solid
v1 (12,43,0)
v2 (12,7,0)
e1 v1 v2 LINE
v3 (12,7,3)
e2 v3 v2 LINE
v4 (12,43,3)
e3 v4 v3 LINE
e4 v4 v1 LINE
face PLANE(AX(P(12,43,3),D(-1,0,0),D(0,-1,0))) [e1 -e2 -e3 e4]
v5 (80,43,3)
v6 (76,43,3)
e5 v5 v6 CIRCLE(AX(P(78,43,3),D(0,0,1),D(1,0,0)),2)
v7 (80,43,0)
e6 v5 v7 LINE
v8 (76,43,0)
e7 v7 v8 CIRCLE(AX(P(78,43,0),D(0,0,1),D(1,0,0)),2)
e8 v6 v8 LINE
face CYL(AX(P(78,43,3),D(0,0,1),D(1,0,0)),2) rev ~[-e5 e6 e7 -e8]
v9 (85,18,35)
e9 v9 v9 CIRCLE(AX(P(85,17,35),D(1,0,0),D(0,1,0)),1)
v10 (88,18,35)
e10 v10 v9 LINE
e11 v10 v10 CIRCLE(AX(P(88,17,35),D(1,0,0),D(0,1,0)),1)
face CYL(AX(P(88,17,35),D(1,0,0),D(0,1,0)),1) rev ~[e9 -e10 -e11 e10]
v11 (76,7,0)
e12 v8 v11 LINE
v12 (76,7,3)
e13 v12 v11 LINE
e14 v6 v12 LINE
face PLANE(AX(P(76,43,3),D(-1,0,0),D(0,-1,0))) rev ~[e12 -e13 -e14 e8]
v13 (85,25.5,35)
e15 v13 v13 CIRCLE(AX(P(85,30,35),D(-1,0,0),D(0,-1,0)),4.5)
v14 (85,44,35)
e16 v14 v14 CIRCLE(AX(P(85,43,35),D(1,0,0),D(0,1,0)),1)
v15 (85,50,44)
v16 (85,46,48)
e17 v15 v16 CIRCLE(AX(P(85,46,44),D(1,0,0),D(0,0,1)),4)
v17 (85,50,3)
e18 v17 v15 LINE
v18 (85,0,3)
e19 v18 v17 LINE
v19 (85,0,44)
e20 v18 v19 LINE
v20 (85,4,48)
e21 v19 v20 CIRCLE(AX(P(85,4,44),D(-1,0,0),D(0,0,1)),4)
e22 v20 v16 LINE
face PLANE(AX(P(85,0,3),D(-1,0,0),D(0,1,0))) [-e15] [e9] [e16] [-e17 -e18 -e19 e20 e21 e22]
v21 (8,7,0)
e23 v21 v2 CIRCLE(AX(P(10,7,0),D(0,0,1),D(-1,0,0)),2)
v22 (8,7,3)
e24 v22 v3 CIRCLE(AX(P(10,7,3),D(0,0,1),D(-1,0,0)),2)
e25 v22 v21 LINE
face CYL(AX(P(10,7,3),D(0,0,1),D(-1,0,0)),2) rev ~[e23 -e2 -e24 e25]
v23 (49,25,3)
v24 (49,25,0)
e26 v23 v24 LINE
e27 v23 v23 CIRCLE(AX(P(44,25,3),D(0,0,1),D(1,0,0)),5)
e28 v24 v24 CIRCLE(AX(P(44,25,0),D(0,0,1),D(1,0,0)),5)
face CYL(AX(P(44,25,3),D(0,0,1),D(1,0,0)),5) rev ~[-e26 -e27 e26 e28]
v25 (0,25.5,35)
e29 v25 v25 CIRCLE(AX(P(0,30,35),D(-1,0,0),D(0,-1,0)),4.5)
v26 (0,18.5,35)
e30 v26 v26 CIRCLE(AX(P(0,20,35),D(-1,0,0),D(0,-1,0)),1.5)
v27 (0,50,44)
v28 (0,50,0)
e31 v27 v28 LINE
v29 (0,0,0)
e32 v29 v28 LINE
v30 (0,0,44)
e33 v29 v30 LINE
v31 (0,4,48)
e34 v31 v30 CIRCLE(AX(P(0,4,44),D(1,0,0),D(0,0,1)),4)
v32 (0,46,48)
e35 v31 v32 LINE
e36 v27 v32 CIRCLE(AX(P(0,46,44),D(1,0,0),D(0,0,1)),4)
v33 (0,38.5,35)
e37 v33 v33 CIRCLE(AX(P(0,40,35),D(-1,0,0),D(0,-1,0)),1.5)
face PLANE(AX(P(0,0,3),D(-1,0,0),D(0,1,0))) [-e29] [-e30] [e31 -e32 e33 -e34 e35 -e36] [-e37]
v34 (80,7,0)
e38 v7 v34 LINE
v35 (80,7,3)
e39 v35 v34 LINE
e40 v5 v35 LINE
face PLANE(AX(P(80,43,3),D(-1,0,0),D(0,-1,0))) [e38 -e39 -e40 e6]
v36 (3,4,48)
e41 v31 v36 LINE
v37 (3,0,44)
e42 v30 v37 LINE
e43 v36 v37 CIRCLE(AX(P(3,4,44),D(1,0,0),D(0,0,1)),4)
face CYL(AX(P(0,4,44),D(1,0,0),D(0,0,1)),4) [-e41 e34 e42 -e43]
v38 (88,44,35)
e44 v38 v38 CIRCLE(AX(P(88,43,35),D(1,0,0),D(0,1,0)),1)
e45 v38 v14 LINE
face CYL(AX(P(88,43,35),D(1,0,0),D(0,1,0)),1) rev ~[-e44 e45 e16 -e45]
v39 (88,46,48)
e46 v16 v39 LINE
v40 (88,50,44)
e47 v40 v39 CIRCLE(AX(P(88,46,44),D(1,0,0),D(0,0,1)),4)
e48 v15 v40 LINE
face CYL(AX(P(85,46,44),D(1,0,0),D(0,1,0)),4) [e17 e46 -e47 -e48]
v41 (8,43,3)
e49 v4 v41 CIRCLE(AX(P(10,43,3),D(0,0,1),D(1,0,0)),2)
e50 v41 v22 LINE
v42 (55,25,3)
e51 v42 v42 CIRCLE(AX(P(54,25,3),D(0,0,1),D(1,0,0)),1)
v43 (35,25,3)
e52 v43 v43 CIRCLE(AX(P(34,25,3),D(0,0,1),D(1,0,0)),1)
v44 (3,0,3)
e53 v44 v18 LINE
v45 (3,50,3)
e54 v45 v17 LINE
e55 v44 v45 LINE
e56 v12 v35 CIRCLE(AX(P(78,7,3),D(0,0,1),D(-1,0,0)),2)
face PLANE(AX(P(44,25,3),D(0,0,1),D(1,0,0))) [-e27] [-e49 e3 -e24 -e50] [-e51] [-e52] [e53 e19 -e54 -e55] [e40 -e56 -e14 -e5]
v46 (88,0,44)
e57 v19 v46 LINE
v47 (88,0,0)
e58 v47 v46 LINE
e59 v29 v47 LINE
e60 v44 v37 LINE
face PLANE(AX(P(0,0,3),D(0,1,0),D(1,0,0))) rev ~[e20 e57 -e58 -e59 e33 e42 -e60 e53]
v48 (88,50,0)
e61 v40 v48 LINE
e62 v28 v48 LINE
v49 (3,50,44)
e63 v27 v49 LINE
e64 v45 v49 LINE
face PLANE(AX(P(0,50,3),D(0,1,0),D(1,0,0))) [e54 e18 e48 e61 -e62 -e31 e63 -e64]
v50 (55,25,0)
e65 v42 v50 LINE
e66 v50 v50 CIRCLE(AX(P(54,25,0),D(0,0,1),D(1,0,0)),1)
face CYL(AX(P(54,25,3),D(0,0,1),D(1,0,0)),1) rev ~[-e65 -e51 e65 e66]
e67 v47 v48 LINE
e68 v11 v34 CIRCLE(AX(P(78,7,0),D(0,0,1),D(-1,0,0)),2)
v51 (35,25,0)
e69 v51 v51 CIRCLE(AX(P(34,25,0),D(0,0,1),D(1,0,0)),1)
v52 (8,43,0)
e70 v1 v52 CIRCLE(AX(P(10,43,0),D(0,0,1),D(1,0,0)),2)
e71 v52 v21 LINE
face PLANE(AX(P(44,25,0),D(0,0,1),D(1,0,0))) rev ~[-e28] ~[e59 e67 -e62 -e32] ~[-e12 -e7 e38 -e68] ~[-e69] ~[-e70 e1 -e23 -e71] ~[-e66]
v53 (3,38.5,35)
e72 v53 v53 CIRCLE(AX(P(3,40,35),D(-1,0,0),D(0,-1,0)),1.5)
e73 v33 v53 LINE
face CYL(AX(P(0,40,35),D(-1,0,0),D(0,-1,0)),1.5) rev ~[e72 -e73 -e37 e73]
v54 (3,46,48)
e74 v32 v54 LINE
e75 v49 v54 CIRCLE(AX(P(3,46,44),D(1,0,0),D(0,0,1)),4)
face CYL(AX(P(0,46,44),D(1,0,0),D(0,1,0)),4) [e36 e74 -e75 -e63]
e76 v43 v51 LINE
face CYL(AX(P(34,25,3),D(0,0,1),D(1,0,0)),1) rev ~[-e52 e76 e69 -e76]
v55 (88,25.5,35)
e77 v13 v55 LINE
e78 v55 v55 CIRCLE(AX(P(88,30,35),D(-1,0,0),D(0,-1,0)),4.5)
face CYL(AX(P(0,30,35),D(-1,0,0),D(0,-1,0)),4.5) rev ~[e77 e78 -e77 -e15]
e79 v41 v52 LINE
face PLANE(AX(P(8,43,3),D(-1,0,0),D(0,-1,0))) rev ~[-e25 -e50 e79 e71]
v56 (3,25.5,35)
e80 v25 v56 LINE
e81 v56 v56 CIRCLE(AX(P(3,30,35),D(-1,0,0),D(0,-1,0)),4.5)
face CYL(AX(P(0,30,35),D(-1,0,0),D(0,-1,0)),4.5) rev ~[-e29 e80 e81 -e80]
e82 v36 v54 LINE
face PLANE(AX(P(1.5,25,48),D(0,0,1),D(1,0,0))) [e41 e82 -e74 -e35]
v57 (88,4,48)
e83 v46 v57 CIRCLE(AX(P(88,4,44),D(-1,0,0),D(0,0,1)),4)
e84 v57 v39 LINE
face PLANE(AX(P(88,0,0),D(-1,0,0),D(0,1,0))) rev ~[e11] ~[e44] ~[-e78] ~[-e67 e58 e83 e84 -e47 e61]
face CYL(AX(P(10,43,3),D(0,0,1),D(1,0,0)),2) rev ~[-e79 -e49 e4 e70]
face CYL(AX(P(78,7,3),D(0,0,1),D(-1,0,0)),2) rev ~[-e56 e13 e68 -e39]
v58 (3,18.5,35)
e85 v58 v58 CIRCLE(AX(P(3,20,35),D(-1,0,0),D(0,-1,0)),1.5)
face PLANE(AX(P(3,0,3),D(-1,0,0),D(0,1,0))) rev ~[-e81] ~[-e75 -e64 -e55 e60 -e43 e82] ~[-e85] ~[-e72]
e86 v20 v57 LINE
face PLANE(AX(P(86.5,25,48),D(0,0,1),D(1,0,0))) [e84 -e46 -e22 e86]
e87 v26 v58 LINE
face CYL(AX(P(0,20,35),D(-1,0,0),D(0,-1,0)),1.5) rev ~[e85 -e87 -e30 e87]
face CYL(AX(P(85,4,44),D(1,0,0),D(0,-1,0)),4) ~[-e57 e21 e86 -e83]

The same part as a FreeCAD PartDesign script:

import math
import FreeCAD as App
import Part
import Sketcher
Q = App.Units.Quantity


def edges_at(feature, points):
    """Names of the edges that pass closest to the given points."""
    edges = feature.Shape.Edges
    near = lambda p: min(range(len(edges)), key=lambda i: edges[i].distToShape(Part.Vertex(*p))[0])
    return sorted({f"Edge{near(p) + 1}" for p in points})

doc = App.newDocument("Part")
body = doc.addObject("PartDesign::Body", "Body")

# Sketch on XY plane
sketch1 = body.newObject("Sketcher::SketchObject", "Sketch")
sketch1.AttachmentSupport = (doc.getObject("XY_Plane"), [""])
sketch1.MapMode = "FlatFace"
sketch1.addGeometry([
    Part.LineSegment(App.Vector(0, 50, 0), App.Vector(0, 0, 0)),
    Part.LineSegment(App.Vector(0, 0, 0), App.Vector(88, 0, 0)),
    Part.LineSegment(App.Vector(88, 0, 0), App.Vector(88, 50, 0)),
    Part.LineSegment(App.Vector(88, 50, 0), App.Vector(0, 50, 0)),
], False)
sketch1.addConstraint([
    Sketcher.Constraint("Coincident", 0, 2, 1, 1),
    Sketcher.Constraint("Coincident", 1, 2, 2, 1),
    Sketcher.Constraint("Coincident", 2, 2, 3, 1),
    Sketcher.Constraint("Coincident", 3, 2, 0, 1),
    Sketcher.Constraint("Vertical", 0),
    Sketcher.Constraint("Horizontal", 1),
    Sketcher.Constraint("Vertical", 2),
    Sketcher.Constraint("Horizontal", 3),
    Sketcher.Constraint("Coincident", 0, 2, -1, 1),
    Sketcher.Constraint("DistanceX", 1, 1, 1, 2, Q("88 mm")),
    Sketcher.Constraint("DistanceY", 0, 2, 0, 1, Q("50 mm")),
])
pad1 = body.newObject("PartDesign::Pad", "Pad")
pad1.Profile = sketch1
pad1.Length = 3

# Sketch on XY plane
sketch2 = body.newObject("Sketcher::SketchObject", "Sketch001")
sketch2.AttachmentSupport = (doc.getObject("XY_Plane"), [""])
sketch2.MapMode = "FlatFace"
sketch2.AttachmentOffset = App.Placement(App.Vector(0, 0, 3), App.Rotation())
sketch2.addGeometry(Part.Circle(App.Vector(44, 25, 0), App.Vector(0, 0, 1), 5), False)
sketch2.addConstraint([
    Sketcher.Constraint("Diameter", 0, Q("10 mm")),
    Sketcher.Constraint("DistanceX", -1, 1, 0, 3, Q("44 mm")),
    Sketcher.Constraint("DistanceY", -1, 1, 0, 3, Q("25 mm")),
])
pocket1 = body.newObject("PartDesign::Pocket", "Pocket")
pocket1.Profile = sketch2
pocket1.Length = 5

# Sketch on XY plane
sketch3 = body.newObject("Sketcher::SketchObject", "Sketch002")
sketch3.AttachmentSupport = (doc.getObject("XY_Plane"), [""])
sketch3.MapMode = "FlatFace"
sketch3.AttachmentOffset = App.Placement(App.Vector(0, 0, 3), App.Rotation())
sketch3.addGeometry([
    Part.LineSegment(App.Vector(0, 50, 0), App.Vector(0, 0, 0)),  # 0
    Part.LineSegment(App.Vector(0, 0, 0), App.Vector(3, 0, 0)),  # 1
    Part.LineSegment(App.Vector(3, 0, 0), App.Vector(3, 50, 0)),  # 2
    Part.LineSegment(App.Vector(3, 50, 0), App.Vector(0, 50, 0)),  # 3
    Part.LineSegment(App.Vector(85, 50, 0), App.Vector(85, 0, 0)),  # 4
    Part.LineSegment(App.Vector(85, 0, 0), App.Vector(88, 0, 0)),  # 5
    Part.LineSegment(App.Vector(88, 0, 0), App.Vector(88, 50, 0)),  # 6
    Part.LineSegment(App.Vector(88, 50, 0), App.Vector(85, 50, 0)),  # 7
], False)
sketch3.addConstraint([
    Sketcher.Constraint("Coincident", 0, 2, 1, 1),
    Sketcher.Constraint("Coincident", 1, 2, 2, 1),
    Sketcher.Constraint("Coincident", 2, 2, 3, 1),
    Sketcher.Constraint("Coincident", 3, 2, 0, 1),
    Sketcher.Constraint("Coincident", 4, 2, 5, 1),
    Sketcher.Constraint("Coincident", 5, 2, 6, 1),
    Sketcher.Constraint("Coincident", 6, 2, 7, 1),
    Sketcher.Constraint("Coincident", 7, 2, 4, 1),
    Sketcher.Constraint("Vertical", 0),
    Sketcher.Constraint("Horizontal", 1),
    Sketcher.Constraint("Vertical", 2),
    Sketcher.Constraint("Horizontal", 3),
    Sketcher.Constraint("Vertical", 4),
    Sketcher.Constraint("Horizontal", 5),
    Sketcher.Constraint("Vertical", 6),
    Sketcher.Constraint("Horizontal", 7),
    Sketcher.Constraint("Coincident", 0, 2, -1, 1),
    Sketcher.Constraint("PointOnObject", 4, 2, -1),
    Sketcher.Constraint("Horizontal", 3, 2, 6, 2),
    Sketcher.Constraint("Equal", 3, 5),
    Sketcher.Constraint("DistanceX", 1, 1, 1, 2, Q("3 mm")),
    Sketcher.Constraint("DistanceY", 0, 2, 0, 1, Q("50 mm")),
    Sketcher.Constraint("DistanceX", -1, 1, 4, 2, Q("85 mm")),
])
pad2 = body.newObject("PartDesign::Pad", "Pad001")
pad2.Profile = sketch3
pad2.Length = 45

# Sketch on YZ plane
sketch4 = body.newObject("Sketcher::SketchObject", "Sketch003")
sketch4.AttachmentSupport = (doc.getObject("YZ_Plane"), [""])
sketch4.MapMode = "FlatFace"
sketch4.addGeometry(Part.Circle(App.Vector(30, 35, 0), App.Vector(0, 0, 1), 4.5), False)
sketch4.addConstraint([
    Sketcher.Constraint("Diameter", 0, Q("9 mm")),
    Sketcher.Constraint("DistanceX", -1, 1, 0, 3, Q("30 mm")),
    Sketcher.Constraint("DistanceY", -1, 1, 0, 3, Q("35 mm")),
])
pocket2 = body.newObject("PartDesign::Pocket", "Pocket001")
pocket2.Profile = sketch4
pocket2.Length = 90
pocket2.Reversed = True
doc.recompute()

fillet = body.newObject("PartDesign::Fillet", "Fillet")
fillet.Base = (pocket2, edges_at(pocket2, [(1.5, 0, 48)]))
fillet.Radius = 4
doc.recompute()

fillet2 = body.newObject("PartDesign::Fillet", "Fillet001")
fillet2.Base = (fillet, edges_at(fillet, [(86.5, 0, 48)]))
fillet2.Radius = 4
doc.recompute()

fillet3 = body.newObject("PartDesign::Fillet", "Fillet002")
fillet3.Base = (fillet2, edges_at(fillet2, [(1.5, 50, 48)]))
fillet3.Radius = 4
doc.recompute()

fillet4 = body.newObject("PartDesign::Fillet", "Fillet003")
fillet4.Base = (fillet3, edges_at(fillet3, [(86.5, 50, 48)]))
fillet4.Radius = 4

# Sketch on XY plane
sketch5 = body.newObject("Sketcher::SketchObject", "Sketch004")
sketch5.AttachmentSupport = (doc.getObject("XY_Plane"), [""])
sketch5.MapMode = "FlatFace"
sketch5.AttachmentOffset = App.Placement(App.Vector(0, 0, 3), App.Rotation())
sketch5.addGeometry([
    Part.ArcOfCircle(Part.Circle(App.Vector(10, 43, 0), App.Vector(0, 0, 1), 2), math.radians(0), math.radians(180)),  # 0
    Part.LineSegment(App.Vector(8, 43, 0), App.Vector(8, 7, 0)),  # 1
    Part.ArcOfCircle(Part.Circle(App.Vector(10, 7, 0), App.Vector(0, 0, 1), 2), math.radians(180), math.radians(360)),  # 2
    Part.LineSegment(App.Vector(12, 7, 0), App.Vector(12, 43, 0)),  # 3
    Part.ArcOfCircle(Part.Circle(App.Vector(78, 43, 0), App.Vector(0, 0, 1), 2), math.radians(0), math.radians(180)),  # 4
    Part.LineSegment(App.Vector(76, 43, 0), App.Vector(76, 7, 0)),  # 5
    Part.ArcOfCircle(Part.Circle(App.Vector(78, 7, 0), App.Vector(0, 0, 1), 2), math.radians(180), math.radians(360)),  # 6
    Part.LineSegment(App.Vector(80, 7, 0), App.Vector(80, 43, 0)),  # 7
], False)
sketch5.addConstraint([
    Sketcher.Constraint("Tangent", 0, 2, 1, 1),
    Sketcher.Constraint("Tangent", 1, 2, 2, 1),
    Sketcher.Constraint("Tangent", 2, 2, 3, 1),
    Sketcher.Constraint("Tangent", 3, 2, 0, 1),
    Sketcher.Constraint("Tangent", 4, 2, 5, 1),
    Sketcher.Constraint("Tangent", 5, 2, 6, 1),
    Sketcher.Constraint("Tangent", 6, 2, 7, 1),
    Sketcher.Constraint("Tangent", 7, 2, 4, 1),
    Sketcher.Constraint("Vertical", 1),
    Sketcher.Constraint("Vertical", 3),
    Sketcher.Constraint("Vertical", 5),
    Sketcher.Constraint("Vertical", 7),
    Sketcher.Constraint("Equal", 2, 4),
    Sketcher.Constraint("Horizontal", 0, 3, 4, 3),
    Sketcher.Constraint("Horizontal", 2, 3, 6, 3),
    Sketcher.Constraint("Radius", 0, Q("2 mm")),
    Sketcher.Constraint("DistanceY", 1, 2, 1, 1, Q("36 mm")),
    Sketcher.Constraint("DistanceX", -1, 1, 0, 3, Q("10 mm")),
    Sketcher.Constraint("DistanceY", -1, 1, 0, 3, Q("43 mm")),
    Sketcher.Constraint("DistanceX", -1, 1, 4, 3, Q("78 mm")),
])
pocket3 = body.newObject("PartDesign::Pocket", "Pocket002")
pocket3.Profile = sketch5
pocket3.Length = 5

# Sketch on YZ plane
sketch6 = body.newObject("Sketcher::SketchObject", "Sketch005")
sketch6.AttachmentSupport = (doc.getObject("YZ_Plane"), [""])
sketch6.MapMode = "FlatFace"
sketch6.addGeometry([
    Part.Circle(App.Vector(40, 35, 0), App.Vector(0, 0, 1), 1.5),
    Part.Circle(App.Vector(20, 35, 0), App.Vector(0, 0, 1), 1.5),
], False)
sketch6.addConstraint([
    Sketcher.Constraint("Equal", 0, 1),
    Sketcher.Constraint("Horizontal", 0, 3, 1, 3),
    Sketcher.Constraint("Diameter", 0, Q("3 mm")),
    Sketcher.Constraint("DistanceX", -1, 1, 0, 3, Q("40 mm")),
    Sketcher.Constraint("DistanceY", -1, 1, 0, 3, Q("35 mm")),
    Sketcher.Constraint("DistanceX", -1, 1, 1, 3, Q("20 mm")),
])
pocket4 = body.newObject("PartDesign::Pocket", "Pocket003")
pocket4.Profile = sketch6
pocket4.Length = 5
pocket4.Reversed = True

# Sketch on YZ plane
sketch7 = body.newObject("Sketcher::SketchObject", "Sketch006")
sketch7.AttachmentSupport = (doc.getObject("YZ_Plane"), [""])
sketch7.MapMode = "FlatFace"
sketch7.AttachmentOffset = App.Placement(App.Vector(0, 0, 88), App.Rotation())
sketch7.addGeometry([
    Part.Circle(App.Vector(17, 35, 0), App.Vector(0, 0, 1), 1),
    Part.Circle(App.Vector(43, 35, 0), App.Vector(0, 0, 1), 1),
], False)
sketch7.addConstraint([
    Sketcher.Constraint("Equal", 0, 1),
    Sketcher.Constraint("Horizontal", 0, 3, 1, 3),
    Sketcher.Constraint("Diameter", 0, Q("2 mm")),
    Sketcher.Constraint("DistanceX", -1, 1, 0, 3, Q("17 mm")),
    Sketcher.Constraint("DistanceY", -1, 1, 0, 3, Q("35 mm")),
    Sketcher.Constraint("DistanceX", -1, 1, 1, 3, Q("43 mm")),
])
pocket5 = body.newObject("PartDesign::Pocket", "Pocket004")
pocket5.Profile = sketch7
pocket5.Length = 5

# Sketch on XY plane
sketch8 = body.newObject("Sketcher::SketchObject", "Sketch007")
sketch8.AttachmentSupport = (doc.getObject("XY_Plane"), [""])
sketch8.MapMode = "FlatFace"
sketch8.AttachmentOffset = App.Placement(App.Vector(0, 0, 3), App.Rotation())
sketch8.addGeometry([
    Part.Circle(App.Vector(34, 25, 0), App.Vector(0, 0, 1), 1),
    Part.Circle(App.Vector(54, 25, 0), App.Vector(0, 0, 1), 1),
], False)
sketch8.addConstraint([
    Sketcher.Constraint("Equal", 0, 1),
    Sketcher.Constraint("Horizontal", 0, 3, 1, 3),
    Sketcher.Constraint("Diameter", 0, Q("2 mm")),
    Sketcher.Constraint("DistanceX", -1, 1, 0, 3, Q("34 mm")),
    Sketcher.Constraint("DistanceY", -1, 1, 0, 3, Q("25 mm")),
    Sketcher.Constraint("DistanceX", -1, 1, 1, 3, Q("54 mm")),
])
pocket6 = body.newObject("PartDesign::Pocket", "Pocket005")
pocket6.Profile = sketch8
pocket6.Length = 5

doc.recompute()
